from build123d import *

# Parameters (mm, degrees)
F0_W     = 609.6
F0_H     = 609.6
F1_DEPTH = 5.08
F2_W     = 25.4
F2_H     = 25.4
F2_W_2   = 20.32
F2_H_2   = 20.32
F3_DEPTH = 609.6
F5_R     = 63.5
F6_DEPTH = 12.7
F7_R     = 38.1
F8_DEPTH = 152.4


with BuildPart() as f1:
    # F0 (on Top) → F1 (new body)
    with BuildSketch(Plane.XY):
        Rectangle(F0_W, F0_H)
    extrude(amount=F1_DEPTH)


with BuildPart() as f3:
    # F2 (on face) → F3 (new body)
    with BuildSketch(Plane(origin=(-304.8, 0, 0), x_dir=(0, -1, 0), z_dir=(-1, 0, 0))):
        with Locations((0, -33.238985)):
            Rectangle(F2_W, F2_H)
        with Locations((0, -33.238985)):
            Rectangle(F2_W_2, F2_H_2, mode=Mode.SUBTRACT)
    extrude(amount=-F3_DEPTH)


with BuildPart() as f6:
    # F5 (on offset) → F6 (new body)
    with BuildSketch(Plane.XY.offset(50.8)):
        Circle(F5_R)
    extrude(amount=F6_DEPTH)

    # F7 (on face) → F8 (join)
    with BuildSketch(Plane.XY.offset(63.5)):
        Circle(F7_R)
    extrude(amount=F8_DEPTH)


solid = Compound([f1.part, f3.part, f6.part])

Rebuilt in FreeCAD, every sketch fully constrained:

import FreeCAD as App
import Part
import Sketcher

V = App.Vector
Q = App.Units.Quantity

doc = App.newDocument("Part")
body = doc.addObject("PartDesign::Body", "Body")

# Sketch on XY plane
sketch1 = doc.addObject("Sketcher::SketchObject", "Sketch")
body.addObject(sketch1)
sketch1.AttachmentSupport = (doc.XY_Plane, [""])
sketch1.MapMode = "FlatFace"
sketch1.addGeometry(Part.LineSegment(V(-305, 305, 0), V(-305, -305, 0)), False)
sketch1.addGeometry(Part.LineSegment(V(-305, -305, 0), V(305, -305, 0)), False)
sketch1.addGeometry(Part.LineSegment(V(305, -305, 0), V(305, 305, 0)), False)
sketch1.addGeometry(Part.LineSegment(V(305, 305, 0), V(-305, 305, 0)), False)
sketch1.addConstraint(Sketcher.Constraint("Coincident", 0, 2, 1, 1))
sketch1.addConstraint(Sketcher.Constraint("Coincident", 1, 2, 2, 1))
sketch1.addConstraint(Sketcher.Constraint("Coincident", 2, 2, 3, 1))
sketch1.addConstraint(Sketcher.Constraint("Coincident", 3, 2, 0, 1))
sketch1.addConstraint(Sketcher.Constraint("Vertical", 0))
sketch1.addConstraint(Sketcher.Constraint("Horizontal", 1))
sketch1.addConstraint(Sketcher.Constraint("Vertical", 2))
sketch1.addConstraint(Sketcher.Constraint("Horizontal", 3))
sketch1.addConstraint(Sketcher.Constraint("Symmetric", 0, 2, 2, 2, -1, 1))
sketch1.addConstraint(Sketcher.Constraint("Equal", 3, 0))
sketch1.addConstraint(Sketcher.Constraint("DistanceX", 1, 1, 1, 2, Q("24 in")))
pad1 = doc.addObject("PartDesign::Pad", "Pad")
body.addObject(pad1)
pad1.Profile = sketch1
pad1.Length = Q("0.2 in")
body2 = doc.addObject("PartDesign::Body", "Body001")

# Sketch on YZ plane
sketch2 = doc.addObject("Sketcher::SketchObject", "Sketch001")
body2.addObject(sketch2)
sketch2.AttachmentSupport = (doc.getObject("YZ_Plane001"), [""])
sketch2.MapMode = "FlatFace"
sketch2.AttachmentOffset = App.Placement(V(0, 0, -12 * 25.4), App.Rotation())
sketch2.addGeometry(Part.LineSegment(V(13, -21, 0), V(13, -46, 0)), False)
sketch2.addGeometry(Part.LineSegment(V(13, -46, 0), V(-13, -46, 0)), False)
sketch2.addGeometry(Part.LineSegment(V(-13, -46, 0), V(-13, -21, 0)), False)
sketch2.addGeometry(Part.LineSegment(V(-13, -21, 0), V(13, -21, 0)), False)
sketch2.addGeometry(Part.LineSegment(V(-10, -43, 0), V(10, -43, 0)), False)
sketch2.addGeometry(Part.LineSegment(V(10, -43, 0), V(10, -23, 0)), False)
sketch2.addGeometry(Part.LineSegment(V(10, -23, 0), V(-10, -23, 0)), False)
sketch2.addGeometry(Part.LineSegment(V(-10, -23, 0), V(-10, -43, 0)), False)
sketch2.addConstraint(Sketcher.Constraint("Coincident", 0, 2, 1, 1))
sketch2.addConstraint(Sketcher.Constraint("Coincident", 1, 2, 2, 1))
sketch2.addConstraint(Sketcher.Constraint("Coincident", 2, 2, 3, 1))
sketch2.addConstraint(Sketcher.Constraint("Coincident", 3, 2, 0, 1))
sketch2.addConstraint(Sketcher.Constraint("Coincident", 4, 2, 5, 1))
sketch2.addConstraint(Sketcher.Constraint("Coincident", 5, 2, 6, 1))
sketch2.addConstraint(Sketcher.Constraint("Coincident", 6, 2, 7, 1))
sketch2.addConstraint(Sketcher.Constraint("Coincident", 7, 2, 4, 1))
sketch2.addConstraint(Sketcher.Constraint("Vertical", 0))
sketch2.addConstraint(Sketcher.Constraint("Horizontal", 1))
sketch2.addConstraint(Sketcher.Constraint("Vertical", 2))
sketch2.addConstraint(Sketcher.Constraint("Horizontal", 3))
sketch2.addConstraint(Sketcher.Constraint("Horizontal", 4))
sketch2.addConstraint(Sketcher.Constraint("Vertical", 5))
sketch2.addConstraint(Sketcher.Constraint("Horizontal", 6))
sketch2.addConstraint(Sketcher.Constraint("Vertical", 7))
sketch2.addConstraint(Sketcher.Constraint("Equal", 3, 0))
sketch2.addConstraint(Sketcher.Constraint("Equal", 6, 5))
sketch2.addConstraint(Sketcher.Constraint("DistanceX", 1, 2, 1, 1, Q("1 in")))
sketch2.addConstraint(Sketcher.Constraint("DistanceX", 4, 1, 4, 2, Q("0.8 in")))
sketch2.addConstraint(Sketcher.Constraint("DistanceX", -1, 1, 0, 2, Q("0.5 in")))
sketch2.addConstraint(Sketcher.Constraint("DistanceX", -1, 1, 4, 2, Q("0.4 in")))
sketch2.addConstraint(Sketcher.Constraint("DistanceY", 0, 2, 4, 2, Q("0.1 in")))
sketch2.addConstraint(Sketcher.Constraint("DistanceY", 0, 2, -1, 1, Q("45.938985 mm")))
pad2 = doc.addObject("PartDesign::Pad", "Pad001")
body2.addObject(pad2)
pad2.Profile = sketch2
pad2.Length = Q("24 in")
body3 = doc.addObject("PartDesign::Body", "Body002")

# Sketch on XY plane
sketch3 = doc.addObject("Sketcher::SketchObject", "Sketch002")
body3.addObject(sketch3)
sketch3.AttachmentSupport = (doc.getObject("XY_Plane002"), [""])
sketch3.MapMode = "FlatFace"
sketch3.AttachmentOffset = App.Placement(V(0, 0, 2 * 25.4), App.Rotation())
sketch3.addGeometry(Part.Circle(V(0, 0, 0), V(0, 0, 1), 64), False)
sketch3.addConstraint(Sketcher.Constraint("Coincident", 0, 3, -1, 1))
sketch3.addConstraint(Sketcher.Constraint("Diameter", 0, Q("5 in")))
pad3 = doc.addObject("PartDesign::Pad", "Pad002")
body3.addObject(pad3)
pad3.Profile = sketch3
pad3.Length = Q("0.5 in")

# Sketch on XY plane
sketch4 = doc.addObject("Sketcher::SketchObject", "Sketch003")
body3.addObject(sketch4)
sketch4.AttachmentSupport = (doc.getObject("XY_Plane002"), [""])
sketch4.MapMode = "FlatFace"
sketch4.AttachmentOffset = App.Placement(V(0, 0, 2.5 * 25.4), App.Rotation())
sketch4.addGeometry(Part.Circle(V(0, 0, 0), V(0, 0, 1), 38), False)
sketch4.addConstraint(Sketcher.Constraint("Coincident", 0, 3, -1, 1))
sketch4.addConstraint(Sketcher.Constraint("Diameter", 0, Q("3 in")))
pad4 = doc.addObject("PartDesign::Pad", "Pad003")
body3.addObject(pad4)
pad4.Profile = sketch4
pad4.Length = Q("6 in")

doc.recompute()
